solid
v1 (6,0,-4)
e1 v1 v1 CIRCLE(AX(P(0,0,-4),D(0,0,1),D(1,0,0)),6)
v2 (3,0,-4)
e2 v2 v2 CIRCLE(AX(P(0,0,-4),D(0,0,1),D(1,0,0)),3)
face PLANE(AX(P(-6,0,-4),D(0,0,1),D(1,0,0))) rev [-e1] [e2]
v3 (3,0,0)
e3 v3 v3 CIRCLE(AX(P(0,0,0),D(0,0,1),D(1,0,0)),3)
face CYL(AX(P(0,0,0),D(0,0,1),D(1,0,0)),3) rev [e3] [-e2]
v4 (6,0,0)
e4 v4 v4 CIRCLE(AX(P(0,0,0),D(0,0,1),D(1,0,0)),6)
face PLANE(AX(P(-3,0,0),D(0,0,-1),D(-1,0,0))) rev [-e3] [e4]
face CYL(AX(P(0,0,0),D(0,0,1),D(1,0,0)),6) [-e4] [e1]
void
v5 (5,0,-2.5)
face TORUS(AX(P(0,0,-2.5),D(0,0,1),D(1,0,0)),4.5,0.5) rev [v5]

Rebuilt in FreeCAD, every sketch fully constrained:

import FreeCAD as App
import Part
import Sketcher

V = App.Vector
Q = App.Units.Quantity

doc = App.newDocument("Part")
params = doc.addObject("Spreadsheet::Sheet", "Params")
for row, (alias, value) in enumerate([
    ("sketch1_diameter", "1 mm"),
    ("sketch1_width", "3 mm"),
    ("sketch1_height", "4 mm"),
    ("revolution_angle", "360 deg"),
], start=1):
    params.set(f"A{row}", alias)
    params.set(f"B{row}", "=" + value)
    params.setAlias(f"B{row}", alias)

body = doc.addObject("PartDesign::Body", "Body")

# Sketch on XZ plane
sketch1 = body.newObject("Sketcher::SketchObject", "Sketch")
sketch1.AttachmentSupport = (doc.getObject("XZ_Plane"), [""])
sketch1.MapMode = "FlatFace"
sketch1.addGeometry([
    Part.LineSegment(V(-6, -4, 0), V(-6, 0, 0)),  # 0
    Part.LineSegment(V(-6, 0, 0), V(-3, 0, 0)),  # 1
    Part.LineSegment(V(-3, 0, 0), V(-3, -4, 0)),  # 2
    Part.LineSegment(V(-3, -4, 0), V(-6, -4, 0)),  # 3
    Part.Circle(V(-4.5, -2.5, 0), V(0, 0, 1), 0.5),  # 4
], False)
sketch1.addConstraint([
    Sketcher.Constraint("Coincident", 0, 2, 1, 1),
    Sketcher.Constraint("Coincident", 1, 2, 2, 1),
    Sketcher.Constraint("Coincident", 2, 2, 3, 1),
    Sketcher.Constraint("Coincident", 3, 2, 0, 1),
    Sketcher.Constraint("Vertical", 0),
    Sketcher.Constraint("Horizontal", 1),
    Sketcher.Constraint("Vertical", 2),
    Sketcher.Constraint("Horizontal", 3),
    Sketcher.Constraint("PointOnObject", 0, 2, -1),
    Sketcher.Constraint("Diameter", 4, Q("1 mm")),
    Sketcher.Constraint("DistanceX", 1, 1, 1, 2, Q("3 mm")),
    Sketcher.Constraint("DistanceY", 0, 1, 0, 2, Q("4 mm")),
    Sketcher.Constraint("DistanceX", 0, 2, -1, 1, Q("6 mm")),
    Sketcher.Constraint("DistanceX", 4, 3, -1, 1, Q("4.5 mm")),
    Sketcher.Constraint("DistanceY", 4, 3, -1, 1, Q("2.5 mm")),
])
sketch1.setExpression("Constraints[9]", "Params.sketch1_diameter")
sketch1.setExpression("Constraints[10]", "Params.sketch1_width")
sketch1.setExpression("Constraints[11]", "Params.sketch1_height")
revolution = body.newObject("PartDesign::Revolution", "Revolution")
revolution.Profile = sketch1
revolution.ReferenceAxis = (sketch1, ["V_Axis"])
revolution.setExpression("Angle", "Params.revolution_angle")

doc.recompute()
